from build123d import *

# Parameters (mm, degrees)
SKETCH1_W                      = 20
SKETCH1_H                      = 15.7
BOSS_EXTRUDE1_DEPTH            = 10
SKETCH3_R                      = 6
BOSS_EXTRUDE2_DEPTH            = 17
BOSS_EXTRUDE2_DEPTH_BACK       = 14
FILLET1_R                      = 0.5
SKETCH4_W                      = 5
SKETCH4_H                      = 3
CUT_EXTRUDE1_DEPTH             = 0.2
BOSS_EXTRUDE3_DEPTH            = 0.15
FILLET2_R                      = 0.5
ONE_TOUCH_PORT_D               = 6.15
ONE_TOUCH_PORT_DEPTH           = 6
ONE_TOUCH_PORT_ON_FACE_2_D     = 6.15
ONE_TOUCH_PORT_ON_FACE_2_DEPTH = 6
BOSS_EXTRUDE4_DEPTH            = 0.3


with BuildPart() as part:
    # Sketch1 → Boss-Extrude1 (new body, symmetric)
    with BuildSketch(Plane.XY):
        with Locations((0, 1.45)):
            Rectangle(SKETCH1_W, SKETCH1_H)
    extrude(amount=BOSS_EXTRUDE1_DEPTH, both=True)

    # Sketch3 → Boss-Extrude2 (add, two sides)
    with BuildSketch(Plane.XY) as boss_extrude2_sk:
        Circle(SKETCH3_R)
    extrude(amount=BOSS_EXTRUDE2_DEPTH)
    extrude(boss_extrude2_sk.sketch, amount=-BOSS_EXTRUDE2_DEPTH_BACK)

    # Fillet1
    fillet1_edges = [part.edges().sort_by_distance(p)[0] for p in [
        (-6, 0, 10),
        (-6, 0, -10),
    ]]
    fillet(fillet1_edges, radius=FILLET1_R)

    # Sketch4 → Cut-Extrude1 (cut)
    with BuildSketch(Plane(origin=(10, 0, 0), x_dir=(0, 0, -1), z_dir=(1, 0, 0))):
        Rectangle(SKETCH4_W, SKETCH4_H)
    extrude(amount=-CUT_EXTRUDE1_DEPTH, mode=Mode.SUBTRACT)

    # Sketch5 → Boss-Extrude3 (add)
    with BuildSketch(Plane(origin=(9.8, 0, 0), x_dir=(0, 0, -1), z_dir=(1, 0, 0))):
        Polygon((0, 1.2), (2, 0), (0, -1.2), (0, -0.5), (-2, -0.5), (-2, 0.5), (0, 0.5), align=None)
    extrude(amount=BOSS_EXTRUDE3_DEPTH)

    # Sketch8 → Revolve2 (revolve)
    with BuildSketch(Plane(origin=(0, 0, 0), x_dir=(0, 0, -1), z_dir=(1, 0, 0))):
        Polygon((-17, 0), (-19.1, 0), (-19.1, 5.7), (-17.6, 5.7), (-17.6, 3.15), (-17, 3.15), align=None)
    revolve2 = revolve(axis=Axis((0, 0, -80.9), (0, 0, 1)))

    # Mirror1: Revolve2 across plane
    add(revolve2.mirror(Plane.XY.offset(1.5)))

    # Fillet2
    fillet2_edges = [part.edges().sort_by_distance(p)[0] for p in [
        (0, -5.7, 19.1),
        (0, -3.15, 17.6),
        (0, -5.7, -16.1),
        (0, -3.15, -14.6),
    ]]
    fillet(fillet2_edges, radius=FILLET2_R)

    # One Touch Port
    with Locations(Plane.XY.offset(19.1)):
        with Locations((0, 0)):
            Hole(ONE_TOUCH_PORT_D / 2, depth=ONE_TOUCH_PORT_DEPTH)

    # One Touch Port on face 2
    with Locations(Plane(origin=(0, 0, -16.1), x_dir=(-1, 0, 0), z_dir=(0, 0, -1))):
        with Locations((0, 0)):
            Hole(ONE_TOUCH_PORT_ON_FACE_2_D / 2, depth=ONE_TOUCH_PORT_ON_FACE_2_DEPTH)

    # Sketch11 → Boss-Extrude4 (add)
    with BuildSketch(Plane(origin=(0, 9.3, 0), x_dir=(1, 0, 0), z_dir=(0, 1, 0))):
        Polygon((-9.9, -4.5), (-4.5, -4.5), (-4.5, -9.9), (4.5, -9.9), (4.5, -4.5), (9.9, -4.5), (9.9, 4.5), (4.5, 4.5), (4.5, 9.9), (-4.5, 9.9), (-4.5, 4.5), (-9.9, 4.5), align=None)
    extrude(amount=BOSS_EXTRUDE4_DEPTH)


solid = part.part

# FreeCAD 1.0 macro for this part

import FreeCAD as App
import Part
import Sketcher
from FreeCAD import Vector
Q = App.Units.Quantity


def edges_at(feature, points):
    """Names of the edges that pass closest to the given points."""
    edges = feature.Shape.Edges
    near = lambda p: min(range(len(edges)), key=lambda i: edges[i].distToShape(Part.Vertex(*p))[0])
    return sorted({f"Edge{near(p) + 1}" for p in points})


def add_polygon(sketch, points):
    """Adds a closed chain of lines whose ends are joined by coincident constraints."""
    first, n = sketch.GeometryCount, len(points)
    for a, b in zip(points, points[1:] + points[:1]):
        sketch.addGeometry(Part.LineSegment(App.Vector(*a, 0), App.Vector(*b, 0)), False)
    for i in range(n):
        sketch.addConstraint(Sketcher.Constraint("Coincident", first + i, 2, first + (i + 1) % n, 1))

doc = App.newDocument("Part")
body = doc.addObject("PartDesign::Body", "Body")

sketch1 = body.newObject("Sketcher::SketchObject", "Sketch")
sketch1.AttachmentSupport = (doc.getObject("XY_Plane"), [""])
sketch1.MapMode = "FlatFace"
add_polygon(sketch1, [(-10, 9), (-10, -6), (10, -6), (10, 9)])
sketch1.addConstraint(Sketcher.Constraint("Vertical", 0))
sketch1.addConstraint(Sketcher.Constraint("Horizontal", 1))
sketch1.addConstraint(Sketcher.Constraint("Vertical", 2))
sketch1.addConstraint(Sketcher.Constraint("Horizontal", 3))
sketch1.addConstraint(Sketcher.Constraint("DistanceX", 1, 1, 1, 2, Q("20 mm")))
sketch1.addConstraint(Sketcher.Constraint("DistanceY", 0, 2, 0, 1, Q("15.7 mm")))
sketch1.addConstraint(Sketcher.Constraint("DistanceX", 0, 2, -1, 1, Q("10 mm")))
sketch1.addConstraint(Sketcher.Constraint("DistanceY", 0, 2, -1, 1, Q("6.4 mm")))
pad1 = body.newObject("PartDesign::Pad", "Pad")
pad1.Profile = sketch1
pad1.Length = 20
pad1.Midplane = True

sketch2 = body.newObject("Sketcher::SketchObject", "Sketch001")
sketch2.AttachmentSupport = (doc.getObject("XY_Plane"), [""])
sketch2.MapMode = "FlatFace"
sketch2.addGeometry(Part.Circle(Vector(0, 0, 0), Vector(0, 0, 1), 6), False)
sketch2.addConstraint(Sketcher.Constraint("Coincident", 0, 3, -1, 1))
sketch2.addConstraint(Sketcher.Constraint("Diameter", 0, Q("12 mm")))
pad2 = body.newObject("PartDesign::Pad", "Pad001")
pad2.Profile = sketch2
pad2.Type = "TwoLengths"
pad2.Length = 17
pad2.Length2 = 14
doc.recompute()

fillet = body.newObject("PartDesign::Fillet", "Fillet")
fillet.Base = (pad2, edges_at(pad2, [(-6, 0, 10), (-6, 0, -10)]))
fillet.Radius = 0.5

sketch3 = body.newObject("Sketcher::SketchObject", "Sketch002")
sketch3.AttachmentSupport = (doc.getObject("YZ_Plane"), [""])
sketch3.MapMode = "FlatFace"
sketch3.AttachmentOffset = App.Placement(Vector(0, 0, 10), App.Rotation())
add_polygon(sketch3, [(1.5, 2.5), (-1.5, 2.5), (-1.5, -2.5), (1.5, -2.5)])
sketch3.addConstraint(Sketcher.Constraint("Horizontal", 0))
sketch3.addConstraint(Sketcher.Constraint("Vertical", 1))
sketch3.addConstraint(Sketcher.Constraint("Horizontal", 2))
sketch3.addConstraint(Sketcher.Constraint("Vertical", 3))
sketch3.addConstraint(Sketcher.Constraint("Symmetric", 0, 2, 2, 2, -1, 1))
sketch3.addConstraint(Sketcher.Constraint("DistanceX", 0, 2, 0, 1, Q("3 mm")))
sketch3.addConstraint(Sketcher.Constraint("DistanceY", 1, 2, 1, 1, Q("5 mm")))
pocket1 = body.newObject("PartDesign::Pocket", "Pocket")
pocket1.Profile = sketch3
pocket1.Length = 0.2

sketch4 = body.newObject("Sketcher::SketchObject", "Sketch003")
sketch4.AttachmentSupport = (doc.getObject("YZ_Plane"), [""])
sketch4.MapMode = "FlatFace"
sketch4.AttachmentOffset = App.Placement(Vector(0, 0, 9.8), App.Rotation())
add_polygon(sketch4, [(0, -2), (1.2, 0), (0.5, 0), (0.5, 2), (-0.5, 2), (-0.5, 0), (-1.2, 0)])
sketch4.addConstraint(Sketcher.Constraint("Horizontal", 1))
sketch4.addConstraint(Sketcher.Constraint("Vertical", 2))
sketch4.addConstraint(Sketcher.Constraint("Horizontal", 3))
sketch4.addConstraint(Sketcher.Constraint("Vertical", 4))
sketch4.addConstraint(Sketcher.Constraint("Horizontal", 5))
sketch4.addConstraint(Sketcher.Constraint("Symmetric", 1, 2, 4, 2, -1, 1))
sketch4.addConstraint(Sketcher.Constraint("Symmetric", 0, 2, 5, 2, -2))
sketch4.addConstraint(Sketcher.Constraint("PointOnObject", 6, 2, -2))
sketch4.addConstraint(Sketcher.Constraint("DistanceX", 3, 2, 3, 1, Q("1 mm")))
sketch4.addConstraint(Sketcher.Constraint("DistanceY", 2, 1, 2, 2, Q("2 mm")))
sketch4.addConstraint(Sketcher.Constraint("DistanceX", 1, 2, 1, 1, Q("0.7 mm")))
sketch4.addConstraint(Sketcher.Constraint("DistanceY", 6, 2, -1, 1, Q("2 mm")))
pad3 = body.newObject("PartDesign::Pad", "Pad002")
pad3.Profile = sketch4
pad3.Length = 0.15

sketch5 = body.newObject("Sketcher::SketchObject", "Sketch004")
sketch5.AttachmentSupport = (doc.getObject("YZ_Plane"), [""])
sketch5.MapMode = "FlatFace"
add_polygon(sketch5, [(0, 19.1), (0, 17), (3.1, 17), (3.1, 17.6), (5.7, 17.6), (5.7, 19.1)])
sketch5.addConstraint(Sketcher.Constraint("Vertical", 0))
sketch5.addConstraint(Sketcher.Constraint("Horizontal", 1))
sketch5.addConstraint(Sketcher.Constraint("Vertical", 2))
sketch5.addConstraint(Sketcher.Constraint("Horizontal", 3))
sketch5.addConstraint(Sketcher.Constraint("Vertical", 4))
sketch5.addConstraint(Sketcher.Constraint("Horizontal", 5))
sketch5.addConstraint(Sketcher.Constraint("PointOnObject", 0, 2, -2))
sketch5.addConstraint(Sketcher.Constraint("DistanceX", 5, 2, 5, 1, Q("5.7 mm")))
sketch5.addConstraint(Sketcher.Constraint("DistanceY", 0, 2, 0, 1, Q("2.1 mm")))
sketch5.addConstraint(Sketcher.Constraint("DistanceY", 2, 1, 2, 2, Q("0.6 mm")))
sketch5.addConstraint(Sketcher.Constraint("DistanceY", -1, 1, 0, 2, Q("17 mm")))
sketch5.addConstraint(Sketcher.Constraint("DistanceX", 1, 1, 1, 2, Q("3.15 mm")))
revolution = body.newObject("PartDesign::Revolution", "Revolution")
revolution.Profile = sketch5
revolution.ReferenceAxis = (sketch5, ["V_Axis"])
revolution.Angle = 360
doc.recompute()

datumplane = body.newObject("PartDesign::Plane", "DatumPlane")
datumplane.AttachmentSupport = (doc.getObject("XY_Plane"), [""])
datumplane.MapMode = "FlatFace"
datumplane.AttachmentOffset = App.Placement(Vector(0, 0, 1.5), App.Rotation())
mirrored = body.newObject("PartDesign::Mirrored", "Mirrored")
mirrored.Originals = [revolution]
mirrored.MirrorPlane = (datumplane, [""])
body.Tip = mirrored
doc.recompute()

fillet2 = body.newObject("PartDesign::Fillet", "Fillet001")
fillet2.Base = (mirrored, edges_at(mirrored, [
    (0, -5.7, 19.1),
    (0, -3.15, 17.6),
    (0, -5.7, -16.1),
    (0, -3.15, -14.6),
]))
fillet2.Radius = 0.5

sketch6 = body.newObject("Sketcher::SketchObject", "Sketch005")
sketch6.AttachmentSupport = (doc.getObject("XY_Plane"), [""])
sketch6.MapMode = "FlatFace"
sketch6.AttachmentOffset = App.Placement(Vector(0, 0, 19.1), App.Rotation())
sketch6.addGeometry(Part.Circle(Vector(0, 0, 0), Vector(0, 0, 1), 3.1), False)
sketch6.addConstraint(Sketcher.Constraint("Coincident", 0, 3, -1, 1))
sketch6.addConstraint(Sketcher.Constraint("Diameter", 0, Q("6.15 mm")))
doc.recompute()
hole = body.newObject("PartDesign::Hole", "Hole")
hole.Profile = sketch6
hole.ThreadType = "None"
hole.Diameter = 6.15
hole.DepthType = "Dimension"
hole.Depth = 6
hole.DrillPoint = "Flat"

sketch7 = body.newObject("Sketcher::SketchObject", "Sketch006")
sketch7.AttachmentSupport = (doc.getObject("XY_Plane"), [""])
sketch7.MapMode = "FlatFace"
sketch7.AttachmentOffset = App.Placement(Vector(0, 0, -16.1), App.Rotation())
sketch7.addGeometry(Part.Circle(Vector(0, 0, 0), Vector(0, 0, 1), 3.1), False)
sketch7.addConstraint(Sketcher.Constraint("Coincident", 0, 3, -1, 1))
sketch7.addConstraint(Sketcher.Constraint("Diameter", 0, Q("6.15 mm")))
doc.recompute()
hole2 = body.newObject("PartDesign::Hole", "Hole001")
hole2.Profile = sketch7
hole2.ThreadType = "None"
hole2.Diameter = 6.15
hole2.DepthType = "Dimension"
hole2.Depth = 6
hole2.DrillPoint = "Flat"
hole2.Reversed = True

sketch8 = body.newObject("Sketcher::SketchObject", "Sketch007")
sketch8.AttachmentSupport = (doc.getObject("XZ_Plane"), [""])
sketch8.MapMode = "FlatFace"
sketch8.AttachmentOffset = App.Placement(Vector(0, 0, -9.3), App.Rotation())
add_polygon(sketch8, [(-10, 4), (-4, 4), (-4, 10), (4, 10), (4, 4), (10, 4), (10, -4), (4, -4), (4, -10), (-4, -10), (-4, -4), (-10, -4)])
sketch8.addConstraint(Sketcher.Constraint("Horizontal", 0))
sketch8.addConstraint(Sketcher.Constraint("Vertical", 1))
sketch8.addConstraint(Sketcher.Constraint("Horizontal", 2))
sketch8.addConstraint(Sketcher.Constraint("Vertical", 3))
sketch8.addConstraint(Sketcher.Constraint("Horizontal", 4))
sketch8.addConstraint(Sketcher.Constraint("Vertical", 5))
sketch8.addConstraint(Sketcher.Constraint("Horizontal", 6))
sketch8.addConstraint(Sketcher.Constraint("Vertical", 7))
sketch8.addConstraint(Sketcher.Constraint("Horizontal", 8))
sketch8.addConstraint(Sketcher.Constraint("Vertical", 9))
sketch8.addConstraint(Sketcher.Constraint("Horizontal", 10))
sketch8.addConstraint(Sketcher.Constraint("Vertical", 11))
sketch8.addConstraint(Sketcher.Constraint("Symmetric", 0, 2, 6, 2, -1, 1))
sketch8.addConstraint(Sketcher.Constraint("Symmetric", 2, 2, 8, 2, -1, 1))
sketch8.addConstraint(Sketcher.Constraint("Symmetric", 4, 2, 10, 2, -1, 1))
sketch8.addConstraint(Sketcher.Constraint("Symmetric", 0, 2, 3, 2, -2))
sketch8.addConstraint(Sketcher.Constraint("Equal", 10, 1))
sketch8.addConstraint(Sketcher.Constraint("Equal", 8, 5))
sketch8.addConstraint(Sketcher.Constraint("DistanceX", 2, 1, 2, 2, Q("9 mm")))
sketch8.addConstraint(Sketcher.Constraint("DistanceX", 0, 1, 0, 2, Q("5.4 mm")))
pad4 = body.newObject("PartDesign::Pad", "Pad003")
pad4.Profile = sketch8
pad4.Length = 0.3
pad4.Reversed = True

doc.recompute()
